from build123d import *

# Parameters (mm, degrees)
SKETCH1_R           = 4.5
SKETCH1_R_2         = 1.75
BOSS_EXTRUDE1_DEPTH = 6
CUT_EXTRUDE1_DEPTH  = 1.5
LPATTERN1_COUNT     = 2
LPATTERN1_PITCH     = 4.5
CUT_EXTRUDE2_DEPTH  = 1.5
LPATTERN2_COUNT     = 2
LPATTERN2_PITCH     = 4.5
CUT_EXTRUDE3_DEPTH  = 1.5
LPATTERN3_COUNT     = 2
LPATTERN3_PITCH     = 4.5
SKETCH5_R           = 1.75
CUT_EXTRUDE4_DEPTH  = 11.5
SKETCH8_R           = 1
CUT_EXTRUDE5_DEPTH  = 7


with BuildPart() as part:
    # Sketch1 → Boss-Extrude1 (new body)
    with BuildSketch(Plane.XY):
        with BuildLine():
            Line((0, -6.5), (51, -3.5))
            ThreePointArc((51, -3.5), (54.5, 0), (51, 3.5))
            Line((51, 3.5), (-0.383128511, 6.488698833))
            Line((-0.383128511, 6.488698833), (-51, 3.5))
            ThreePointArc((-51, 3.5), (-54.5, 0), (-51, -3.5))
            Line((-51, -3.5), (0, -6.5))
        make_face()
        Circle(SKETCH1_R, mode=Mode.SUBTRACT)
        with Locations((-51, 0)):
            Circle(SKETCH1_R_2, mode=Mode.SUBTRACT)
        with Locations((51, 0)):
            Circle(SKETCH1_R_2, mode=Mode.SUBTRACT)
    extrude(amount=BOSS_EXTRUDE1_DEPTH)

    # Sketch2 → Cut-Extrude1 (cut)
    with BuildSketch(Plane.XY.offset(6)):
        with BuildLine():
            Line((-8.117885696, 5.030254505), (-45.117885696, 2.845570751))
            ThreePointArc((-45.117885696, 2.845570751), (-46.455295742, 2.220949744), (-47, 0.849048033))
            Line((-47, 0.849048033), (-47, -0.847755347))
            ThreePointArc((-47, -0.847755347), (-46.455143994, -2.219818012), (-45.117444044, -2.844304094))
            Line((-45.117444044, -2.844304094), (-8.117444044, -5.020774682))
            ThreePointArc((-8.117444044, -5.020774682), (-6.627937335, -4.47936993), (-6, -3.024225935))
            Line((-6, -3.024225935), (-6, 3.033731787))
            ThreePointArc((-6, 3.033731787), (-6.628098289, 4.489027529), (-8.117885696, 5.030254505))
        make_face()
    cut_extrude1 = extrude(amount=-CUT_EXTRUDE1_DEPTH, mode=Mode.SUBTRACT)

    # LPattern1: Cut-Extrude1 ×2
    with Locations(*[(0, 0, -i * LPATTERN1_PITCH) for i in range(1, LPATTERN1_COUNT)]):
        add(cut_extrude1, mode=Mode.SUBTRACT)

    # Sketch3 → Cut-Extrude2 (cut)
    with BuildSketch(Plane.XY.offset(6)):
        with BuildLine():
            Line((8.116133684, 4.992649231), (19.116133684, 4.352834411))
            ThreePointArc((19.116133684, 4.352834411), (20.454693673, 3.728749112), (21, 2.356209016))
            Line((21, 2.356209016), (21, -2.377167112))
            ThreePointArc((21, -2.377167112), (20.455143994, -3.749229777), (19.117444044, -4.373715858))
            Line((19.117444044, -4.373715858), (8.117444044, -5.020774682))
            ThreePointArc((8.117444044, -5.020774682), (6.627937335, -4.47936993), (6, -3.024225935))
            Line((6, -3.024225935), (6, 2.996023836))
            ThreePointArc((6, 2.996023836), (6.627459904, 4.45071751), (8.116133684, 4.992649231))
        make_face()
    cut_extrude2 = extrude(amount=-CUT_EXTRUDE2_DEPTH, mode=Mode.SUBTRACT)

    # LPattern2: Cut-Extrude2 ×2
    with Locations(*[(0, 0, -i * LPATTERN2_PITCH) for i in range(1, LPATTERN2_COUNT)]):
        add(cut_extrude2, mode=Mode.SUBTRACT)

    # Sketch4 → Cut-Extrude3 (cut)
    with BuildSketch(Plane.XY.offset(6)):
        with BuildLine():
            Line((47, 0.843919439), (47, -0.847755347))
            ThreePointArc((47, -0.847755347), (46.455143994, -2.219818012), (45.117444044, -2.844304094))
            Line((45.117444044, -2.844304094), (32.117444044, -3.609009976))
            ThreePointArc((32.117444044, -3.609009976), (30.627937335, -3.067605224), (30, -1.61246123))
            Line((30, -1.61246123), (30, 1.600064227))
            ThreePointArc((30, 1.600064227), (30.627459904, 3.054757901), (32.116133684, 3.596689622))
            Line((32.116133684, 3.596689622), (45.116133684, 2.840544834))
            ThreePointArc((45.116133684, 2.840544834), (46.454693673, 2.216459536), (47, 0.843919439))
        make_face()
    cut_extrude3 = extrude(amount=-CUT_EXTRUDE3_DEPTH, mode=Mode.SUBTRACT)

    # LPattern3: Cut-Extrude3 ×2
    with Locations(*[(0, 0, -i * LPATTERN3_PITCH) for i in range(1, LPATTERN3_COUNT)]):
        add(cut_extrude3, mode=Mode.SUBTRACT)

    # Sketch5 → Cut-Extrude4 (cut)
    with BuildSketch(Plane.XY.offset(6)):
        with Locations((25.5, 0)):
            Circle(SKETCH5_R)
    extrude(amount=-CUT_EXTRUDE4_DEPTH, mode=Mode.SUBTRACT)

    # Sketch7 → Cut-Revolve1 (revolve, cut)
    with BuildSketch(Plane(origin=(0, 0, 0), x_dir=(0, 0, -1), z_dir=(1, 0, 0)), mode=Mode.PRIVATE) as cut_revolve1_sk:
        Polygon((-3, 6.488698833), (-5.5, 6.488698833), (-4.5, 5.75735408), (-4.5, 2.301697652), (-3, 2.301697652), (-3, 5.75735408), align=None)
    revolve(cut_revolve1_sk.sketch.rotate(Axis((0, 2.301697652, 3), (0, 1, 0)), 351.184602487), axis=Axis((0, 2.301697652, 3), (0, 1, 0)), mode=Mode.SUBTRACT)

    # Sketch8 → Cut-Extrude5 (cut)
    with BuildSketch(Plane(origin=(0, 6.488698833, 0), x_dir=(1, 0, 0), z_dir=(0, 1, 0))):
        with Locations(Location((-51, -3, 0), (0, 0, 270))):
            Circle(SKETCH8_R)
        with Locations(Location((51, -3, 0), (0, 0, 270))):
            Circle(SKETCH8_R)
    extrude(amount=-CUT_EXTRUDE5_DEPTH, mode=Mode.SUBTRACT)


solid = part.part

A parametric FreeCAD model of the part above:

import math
import FreeCAD as App
import Part
import Sketcher

V = App.Vector
Q = App.Units.Quantity


def add_polygon(sketch, points):
    """Adds a closed chain of lines whose ends are joined by coincident constraints."""
    first, n = sketch.GeometryCount, len(points)
    for a, b in zip(points, points[1:] + points[:1]):
        sketch.addGeometry(Part.LineSegment(App.Vector(*a, 0), App.Vector(*b, 0)), False)
    for i in range(n):
        sketch.addConstraint(Sketcher.Constraint("Coincident", first + i, 2, first + (i + 1) % n, 1))

doc = App.newDocument("Part")
body = doc.addObject("PartDesign::Body", "Body")

# Sketch on XY plane
sketch1 = doc.addObject("Sketcher::SketchObject", "Sketch")
body.addObject(sketch1)
sketch1.AttachmentSupport = (doc.XY_Plane, [""])
sketch1.MapMode = "FlatFace"
sketch1.addGeometry([
    Part.LineSegment(V(0, -6.5, 0), V(51, -3.5, 0)),  # 0
    Part.ArcOfCircle(Part.Circle(V(51, 0, 0), V(0, 0, 1), 3.5), math.radians(-90), math.radians(90)),  # 1
    Part.LineSegment(V(51, 3.5, 0), V(-0.4, 6.5, 0)),  # 2
    Part.LineSegment(V(-0.4, 6.5, 0), V(-51, 3.5, 0)),  # 3
    Part.ArcOfCircle(Part.Circle(V(-51, 0, 0), V(0, 0, 1), 3.5), math.radians(90), math.radians(270)),  # 4
    Part.LineSegment(V(-51, -3.5, 0), V(0, -6.5, 0)),  # 5
    Part.Circle(V(-51, 0, 0), V(0, 0, 1), 1.8),  # 6
    Part.Circle(V(0, 0, 0), V(0, 0, 1), 4.5),  # 7
    Part.Circle(V(51, 0, 0), V(0, 0, 1), 1.8),  # 8
], False)
sketch1.addConstraint([
    Sketcher.Constraint("Coincident", 0, 2, 1, 1),
    Sketcher.Constraint("Coincident", 1, 2, 2, 1),
    Sketcher.Constraint("Coincident", 2, 2, 3, 1),
    Sketcher.Constraint("Coincident", 3, 2, 4, 1),
    Sketcher.Constraint("Coincident", 4, 2, 5, 1),
    Sketcher.Constraint("Coincident", 5, 2, 0, 1),
    Sketcher.Constraint("Coincident", 7, 3, -1, 1),
    Sketcher.Constraint("Coincident", 6, 3, 4, 3),
    Sketcher.Constraint("Coincident", 8, 3, 1, 3),
    Sketcher.Constraint("Equal", 1, 4),
    Sketcher.Constraint("Equal", 6, 8),
    Sketcher.Constraint("Symmetric", 1, 3, 4, 3, -1, 1),
    Sketcher.Constraint("Symmetric", 1, 2, 3, 2, -2),
    Sketcher.Constraint("PointOnObject", 5, 2, -2),
    Sketcher.Constraint("Vertical", 8, 3, 0, 2),
    Sketcher.Constraint("Vertical", 0, 2, 1, 2),
    Sketcher.Constraint("Vertical", 3, 2, 4, 2),
    Sketcher.Constraint("Diameter", 7, Q("9 mm")),
    Sketcher.Constraint("Diameter", 6, Q("3.5 mm")),
    Sketcher.Constraint("Radius", 1, Q("3.5 mm")),
    Sketcher.Constraint("DistanceX", -1, 1, 1, 3, Q("51 mm")),
    Sketcher.Constraint("DistanceY", 5, 2, 0, 2, Q("3 mm")),
    Sketcher.Constraint("DistanceY", -1, 1, 2, 2, Q("6.488699 mm")),
    Sketcher.Constraint("Distance", 3, Q("50.705029 mm")),
])
pad1 = doc.addObject("PartDesign::Pad", "Pad")
body.addObject(pad1)
pad1.Profile = sketch1
pad1.Length = 6

# Sketch on XY plane
sketch2 = doc.addObject("Sketcher::SketchObject", "Sketch001")
body.addObject(sketch2)
sketch2.AttachmentSupport = (doc.XY_Plane, [""])
sketch2.MapMode = "FlatFace"
sketch2.AttachmentOffset = App.Placement(V(0, 0, 6), App.Rotation())
sketch2.addGeometry([
    Part.LineSegment(V(-8.1, 5, 0), V(-45.1, 2.8, 0)),  # 0
    Part.ArcOfCircle(Part.Circle(V(-45, 0.8, 0), V(0, 0, 1), 2), math.radians(93), math.radians(180)),  # 1
    Part.LineSegment(V(-47, 0.8, 0), V(-47, -0.8, 0)),  # 2
    Part.ArcOfCircle(Part.Circle(V(-45, -0.8, 0), V(0, 0, 1), 2), math.radians(-180), math.radians(-93)),  # 3
    Part.LineSegment(V(-45.1, -2.8, 0), V(-8.1, -5, 0)),  # 4
    Part.ArcOfCircle(Part.Circle(V(-8, -3, 0), V(0, 0, 1), 2), math.radians(-93), math.radians(0)),  # 5
    Part.LineSegment(V(-6, -3, 0), V(-6, 3, 0)),  # 6
    Part.ArcOfCircle(Part.Circle(V(-8, 3, 0), V(0, 0, 1), 2), math.radians(0), math.radians(93)),  # 7
], False)
sketch2.addConstraint([
    Sketcher.Constraint("Tangent", 0, 2, 1, 1),
    Sketcher.Constraint("Tangent", 1, 2, 2, 1),
    Sketcher.Constraint("Tangent", 2, 2, 3, 1),
    Sketcher.Constraint("Tangent", 3, 2, 4, 1),
    Sketcher.Constraint("Tangent", 4, 2, 5, 1),
    Sketcher.Constraint("Tangent", 5, 2, 6, 1),
    Sketcher.Constraint("Tangent", 6, 2, 7, 1),
    Sketcher.Constraint("Tangent", 7, 2, 0, 1),
    Sketcher.Constraint("Vertical", 2),
    Sketcher.Constraint("Vertical", 6),
    Sketcher.Constraint("Equal", 1, 3),
    Sketcher.Constraint("Equal", 3, 5),
    Sketcher.Constraint("Equal", 5, 7),
    Sketcher.Constraint("Radius", 1, Q("2 mm")),
    Sketcher.Constraint("DistanceX", 1, 3, -1, 1, Q("45 mm")),
    Sketcher.Constraint("DistanceX", 5, 3, -1, 1, Q("8 mm")),
    Sketcher.Constraint("Distance", 0, Q("37.064442 mm")),
    Sketcher.Constraint("Distance", 4, Q("37.063959 mm")),
    Sketcher.Constraint("DistanceY", 2, 2, 2, 1, Q("1.696803 mm")),
    Sketcher.Constraint("DistanceY", -1, 1, 1, 3, Q("0.849048 mm")),
])
pocket1 = doc.addObject("PartDesign::Pocket", "Pocket")
body.addObject(pocket1)
pocket1.Profile = sketch2
pocket1.Length = 1.5
doc.recompute()

linearpattern = doc.addObject("PartDesign::LinearPattern", "LinearPattern")
body.addObject(linearpattern)
linearpattern.Originals = [pocket1]
linearpattern.Direction = (doc.Z_Axis, [""])
linearpattern.Mode = "offset"
linearpattern.Offset = 4.5
linearpattern.Occurrences = 2
linearpattern.Reversed = True
body.Tip = linearpattern

# Sketch on XY plane
sketch3 = doc.addObject("Sketcher::SketchObject", "Sketch002")
body.addObject(sketch3)
sketch3.AttachmentSupport = (doc.XY_Plane, [""])
sketch3.MapMode = "FlatFace"
sketch3.AttachmentOffset = App.Placement(V(0, 0, 6), App.Rotation())
sketch3.addGeometry([
    Part.LineSegment(V(19.116134, 4.352834, 0), V(8.116134, 4.992649, 0)),  # 0
    Part.ArcOfCircle(Part.Circle(V(8, 2.996024, 0), V(0, 0, 1), 2), math.radians(86.671143), math.radians(180)),  # 1
    Part.LineSegment(V(6, 2.996024, 0), V(6, -3.024226, 0)),  # 2
    Part.ArcOfCircle(Part.Circle(V(8, -3.024226, 0), V(0, 0, 1), 2), math.radians(180), math.radians(273.366461)),  # 3
    Part.LineSegment(V(8.117444, -5.020775, 0), V(19.117444, -4.373716, 0)),  # 4
    Part.ArcOfCircle(Part.Circle(V(19, -2.377167, 0), V(0, 0, 1), 2), math.radians(-86.633539), math.radians(0)),  # 5
    Part.LineSegment(V(21, -2.377167, 0), V(21, 2.356209, 0)),  # 6
    Part.ArcOfCircle(Part.Circle(V(19, 2.356209, 0), V(0, 0, 1), 2), math.radians(0), math.radians(86.671142)),  # 7
], False)
sketch3.addConstraint([
    Sketcher.Constraint("Coincident", 0, 2, 1, 1),
    Sketcher.Constraint("Coincident", 1, 2, 2, 1),
    Sketcher.Constraint("Coincident", 2, 2, 3, 1),
    Sketcher.Constraint("Coincident", 3, 2, 4, 1),
    Sketcher.Constraint("Coincident", 4, 2, 5, 1),
    Sketcher.Constraint("Coincident", 5, 2, 6, 1),
    Sketcher.Constraint("Coincident", 6, 2, 7, 1),
    Sketcher.Constraint("Coincident", 7, 2, 0, 1),
    Sketcher.Constraint("Vertical", 2),
    Sketcher.Constraint("Vertical", 6),
    Sketcher.Constraint("Radius", 1, Q("2 mm")),
    Sketcher.Constraint("Radius", 3, Q("2 mm")),
    Sketcher.Constraint("Radius", 5, Q("2 mm")),
    Sketcher.Constraint("Radius", 7, Q("2 mm")),
    Sketcher.Constraint("DistanceX", -1, 1, 1, 3, Q("8 mm")),
    Sketcher.Constraint("DistanceX", -1, 1, 5, 3, Q("19 mm")),
    Sketcher.Constraint("DistanceX", 3, 2, 4, 2, Q("11 mm")),
    Sketcher.Constraint("DistanceY", 5, 3, 7, 2, Q("6.730002 mm")),
    Sketcher.Constraint("DistanceY", 5, 2, 7, 2, Q("6.730002 mm")),
    Sketcher.Constraint("DistanceY", 2, 2, 2, 1, Q("6.02025 mm")),
    Sketcher.Constraint("DistanceY", 3, 2, 1, 3, Q("8.016799 mm")),
    Sketcher.Constraint("DistanceY", 3, 2, 1, 2, Q("8.016799 mm")),
    Sketcher.Constraint("Distance", 0, Q("11.018592 mm")),
    Sketcher.Constraint("DistanceY", 6, 1, 6, 2, Q("4.733376 mm")),
    Sketcher.Constraint("DistanceY", -1, 1, 7, 3, Q("2.356209 mm")),
    Sketcher.Constraint("DistanceY", -1, 1, 0, 2, Q("4.992649 mm")),
    Sketcher.Constraint("DistanceY", -1, 1, 6, 2, Q("2.356209 mm")),
    Sketcher.Constraint("DistanceY", 3, 3, 1, 3, Q("6.02025 mm")),
])
pocket2 = doc.addObject("PartDesign::Pocket", "Pocket001")
body.addObject(pocket2)
pocket2.Profile = sketch3
pocket2.Length = 1.5
doc.recompute()

linearpattern2 = doc.addObject("PartDesign::LinearPattern", "LinearPattern001")
body.addObject(linearpattern2)
linearpattern2.Originals = [pocket2]
linearpattern2.Direction = (doc.Z_Axis, [""])
linearpattern2.Mode = "offset"
linearpattern2.Offset = 4.5
linearpattern2.Occurrences = 2
linearpattern2.Reversed = True
body.Tip = linearpattern2

# Sketch on XY plane
sketch4 = doc.addObject("Sketcher::SketchObject", "Sketch003")
body.addObject(sketch4)
sketch4.AttachmentSupport = (doc.XY_Plane, [""])
sketch4.MapMode = "FlatFace"
sketch4.AttachmentOffset = App.Placement(V(0, 0, 6), App.Rotation())
sketch4.addGeometry([
    Part.LineSegment(V(47, -0.8, 0), V(47, 0.8, 0)),  # 0
    Part.ArcOfCircle(Part.Circle(V(45, 0.8, 0), V(0, 0, 1), 2), math.radians(0), math.radians(87)),  # 1
    Part.LineSegment(V(45.1, 2.8, 0), V(32.1, 3.6, 0)),  # 2
    Part.ArcOfCircle(Part.Circle(V(32, 1.6, 0), V(0, 0, 1), 2), math.radians(87), math.radians(180)),  # 3
    Part.LineSegment(V(30, 1.6, 0), V(30, -1.6, 0)),  # 4
    Part.ArcOfCircle(Part.Circle(V(32, -1.6, 0), V(0, 0, 1), 2), math.radians(180), math.radians(273)),  # 5
    Part.LineSegment(V(32.1, -3.6, 0), V(45.1, -2.8, 0)),  # 6
    Part.ArcOfCircle(Part.Circle(V(45, -0.8, 0), V(0, 0, 1), 2), math.radians(-87), math.radians(0)),  # 7
], False)
sketch4.addConstraint([
    Sketcher.Constraint("Tangent", 0, 2, 1, 1),
    Sketcher.Constraint("Tangent", 1, 2, 2, 1),
    Sketcher.Constraint("Tangent", 2, 2, 3, 1),
    Sketcher.Constraint("Tangent", 3, 2, 4, 1),
    Sketcher.Constraint("Tangent", 4, 2, 5, 1),
    Sketcher.Constraint("Tangent", 5, 2, 6, 1),
    Sketcher.Constraint("Tangent", 6, 2, 7, 1),
    Sketcher.Constraint("Tangent", 7, 2, 0, 1),
    Sketcher.Constraint("Vertical", 0),
    Sketcher.Constraint("Vertical", 4),
    Sketcher.Constraint("Equal", 1, 3),
    Sketcher.Constraint("Equal", 3, 5),
    Sketcher.Constraint("Equal", 5, 7),
    Sketcher.Constraint("Radius", 1, Q("2 mm")),
    Sketcher.Constraint("DistanceX", -1, 1, 1, 3, Q("45 mm")),
    Sketcher.Constraint("DistanceX", -1, 1, 3, 3, Q("32 mm")),
    Sketcher.Constraint("DistanceY", 7, 3, 1, 2, Q("3.6883 mm")),
    Sketcher.Constraint("DistanceY", 5, 2, 2, 2, Q("7.2057 mm")),
    Sketcher.Constraint("Distance", 6, Q("13.022472 mm")),
    Sketcher.Constraint("DistanceY", -1, 1, 1, 3, Q("0.843919 mm")),
])
pocket3 = doc.addObject("PartDesign::Pocket", "Pocket002")
body.addObject(pocket3)
pocket3.Profile = sketch4
pocket3.Length = 1.5
doc.recompute()

linearpattern3 = doc.addObject("PartDesign::LinearPattern", "LinearPattern002")
body.addObject(linearpattern3)
linearpattern3.Originals = [pocket3]
linearpattern3.Direction = (doc.Z_Axis, [""])
linearpattern3.Mode = "offset"
linearpattern3.Offset = 4.5
linearpattern3.Occurrences = 2
linearpattern3.Reversed = True
body.Tip = linearpattern3

# Sketch on XY plane
sketch5 = doc.addObject("Sketcher::SketchObject", "Sketch004")
body.addObject(sketch5)
sketch5.AttachmentSupport = (doc.XY_Plane, [""])
sketch5.MapMode = "FlatFace"
sketch5.AttachmentOffset = App.Placement(V(0, 0, 6), App.Rotation())
sketch5.addGeometry(Part.Circle(V(25.5, 0, 0), V(0, 0, 1), 1.8), False)
sketch5.addConstraint([
    Sketcher.Constraint("PointOnObject", 0, 3, -1),
    Sketcher.Constraint("Diameter", 0, Q("3.5 mm")),
    Sketcher.Constraint("DistanceX", -1, 1, 0, 3, Q("25.5 mm")),
])
pocket4 = doc.addObject("PartDesign::Pocket", "Pocket003")
body.addObject(pocket4)
pocket4.Profile = sketch5
pocket4.Length = 11.5

# Sketch on YZ plane
sketch6 = doc.addObject("Sketcher::SketchObject", "Sketch005")
body.addObject(sketch6)
sketch6.AttachmentSupport = (doc.YZ_Plane, [""])
sketch6.MapMode = "FlatFace"
add_polygon(sketch6, [(6.5, 3), (6.5, 5.5), (5.8, 4.5), (2.3, 4.5), (2.3, 3)])  # lines 0-4
sketch6.addGeometry(Part.LineSegment(V(2.3, 3, 0), V(6.5, 3, 0)), True)  # axis
sketch6.addConstraint([
    Sketcher.Constraint("Vertical", 0),
    Sketcher.Constraint("Horizontal", 2),
    Sketcher.Constraint("Vertical", 3),
    Sketcher.Constraint("Horizontal", 4),
    Sketcher.Constraint("Horizontal", 5),
    Sketcher.Constraint("Coincident", 5, 1, 3, 2),
    Sketcher.Constraint("Vertical", 0, 2, 5, 2),
    Sketcher.Constraint("DistanceY", 0, 1, 0, 2, Q("2.5 mm")),
    Sketcher.Constraint("DistanceY", 3, 2, 3, 1, Q("1.5 mm")),
    Sketcher.Constraint("DistanceY", -1, 1, 3, 2, Q("3 mm")),
    Sketcher.Constraint("DistanceX", 4, 1, 4, 2, Q("4.187001 mm")),
    Sketcher.Constraint("DistanceX", -1, 1, 0, 2, Q("6.488699 mm")),
    Sketcher.Constraint("DistanceX", 2, 2, 2, 1, Q("3.455656 mm")),
])
groove = doc.addObject("PartDesign::Groove", "Groove")
body.addObject(groove)
groove.Profile = sketch6
groove.ReferenceAxis = (sketch6, ["Axis0"])
groove.Angle = 360

# Sketch on XZ plane
sketch7 = doc.addObject("Sketcher::SketchObject", "Sketch006")
body.addObject(sketch7)
sketch7.AttachmentSupport = (doc.XZ_Plane, [""])
sketch7.MapMode = "FlatFace"
sketch7.AttachmentOffset = App.Placement(V(0, 0, -6.488699), App.Rotation())
sketch7.addGeometry([
    Part.Circle(V(-51, 3, 0), V(0, 0, 1), 1),
    Part.Circle(V(51, 3, 0), V(0, 0, 1), 1),
], False)
sketch7.addConstraint([
    Sketcher.Constraint("Equal", 0, 1),
    Sketcher.Constraint("Symmetric", 0, 3, 1, 3, -2),
    Sketcher.Constraint("Diameter", 0, Q("2 mm")),
    Sketcher.Constraint("DistanceX", 0, 3, -1, 1, Q("51 mm")),
    Sketcher.Constraint("DistanceY", -1, 1, 0, 3, Q("3 mm")),
])
pocket5 = doc.addObject("PartDesign::Pocket", "Pocket004")
body.addObject(pocket5)
pocket5.Profile = sketch7
pocket5.Length = 7
pocket5.Reversed = True

doc.recompute()
